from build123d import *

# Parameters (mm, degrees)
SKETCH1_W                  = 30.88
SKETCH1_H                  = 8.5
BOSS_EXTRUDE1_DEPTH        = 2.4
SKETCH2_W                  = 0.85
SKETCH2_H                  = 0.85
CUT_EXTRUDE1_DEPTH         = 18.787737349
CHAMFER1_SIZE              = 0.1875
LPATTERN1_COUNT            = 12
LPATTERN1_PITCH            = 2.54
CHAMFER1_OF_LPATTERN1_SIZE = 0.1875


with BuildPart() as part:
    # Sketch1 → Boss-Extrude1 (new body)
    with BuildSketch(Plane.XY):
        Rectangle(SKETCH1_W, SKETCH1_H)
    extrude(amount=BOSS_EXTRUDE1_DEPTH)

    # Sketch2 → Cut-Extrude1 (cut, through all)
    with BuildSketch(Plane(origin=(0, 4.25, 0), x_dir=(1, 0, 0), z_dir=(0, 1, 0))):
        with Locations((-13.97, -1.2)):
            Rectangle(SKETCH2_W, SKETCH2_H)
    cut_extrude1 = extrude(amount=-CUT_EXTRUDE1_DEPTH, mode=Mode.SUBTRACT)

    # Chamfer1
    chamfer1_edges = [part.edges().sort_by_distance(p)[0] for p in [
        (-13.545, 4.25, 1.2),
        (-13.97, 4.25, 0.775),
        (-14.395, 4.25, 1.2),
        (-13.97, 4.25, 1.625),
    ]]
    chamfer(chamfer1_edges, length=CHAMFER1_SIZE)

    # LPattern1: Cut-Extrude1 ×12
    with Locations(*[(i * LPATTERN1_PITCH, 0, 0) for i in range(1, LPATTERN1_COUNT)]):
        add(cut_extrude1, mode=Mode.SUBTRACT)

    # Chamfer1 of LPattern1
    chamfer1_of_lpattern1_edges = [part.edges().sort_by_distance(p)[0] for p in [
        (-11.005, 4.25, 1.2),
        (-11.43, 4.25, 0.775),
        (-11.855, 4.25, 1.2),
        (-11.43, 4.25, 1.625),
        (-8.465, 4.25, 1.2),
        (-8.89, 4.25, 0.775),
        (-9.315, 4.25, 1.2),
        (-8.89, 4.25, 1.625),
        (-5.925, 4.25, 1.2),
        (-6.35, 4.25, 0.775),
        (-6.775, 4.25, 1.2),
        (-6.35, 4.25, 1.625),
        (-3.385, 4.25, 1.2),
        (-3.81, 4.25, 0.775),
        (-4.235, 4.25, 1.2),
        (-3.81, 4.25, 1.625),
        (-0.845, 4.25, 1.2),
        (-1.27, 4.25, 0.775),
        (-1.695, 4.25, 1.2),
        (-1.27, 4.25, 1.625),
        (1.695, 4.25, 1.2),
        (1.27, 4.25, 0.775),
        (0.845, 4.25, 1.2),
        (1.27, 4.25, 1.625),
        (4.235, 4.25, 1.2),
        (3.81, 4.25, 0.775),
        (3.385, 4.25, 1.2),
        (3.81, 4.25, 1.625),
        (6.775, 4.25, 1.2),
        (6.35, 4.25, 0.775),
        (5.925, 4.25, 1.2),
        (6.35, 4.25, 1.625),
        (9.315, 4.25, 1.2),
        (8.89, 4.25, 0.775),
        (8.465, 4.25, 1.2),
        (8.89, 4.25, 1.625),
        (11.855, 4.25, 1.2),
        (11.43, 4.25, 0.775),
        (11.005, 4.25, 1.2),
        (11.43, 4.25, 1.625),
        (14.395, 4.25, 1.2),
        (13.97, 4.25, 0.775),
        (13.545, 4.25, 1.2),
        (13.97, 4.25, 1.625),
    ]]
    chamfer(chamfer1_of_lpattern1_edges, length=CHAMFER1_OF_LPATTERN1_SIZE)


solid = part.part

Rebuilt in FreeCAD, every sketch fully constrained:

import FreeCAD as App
import Part
import Sketcher

V = App.Vector


def edges_at(feature, points):
    """Names of the edges that pass closest to the given points."""
    edges = feature.Shape.Edges
    near = lambda p: min(range(len(edges)), key=lambda i: edges[i].distToShape(Part.Vertex(*p))[0])
    return sorted({f"Edge{near(p) + 1}" for p in points})

doc = App.newDocument("Part")
body = doc.addObject("PartDesign::Body", "Body")

sketch1 = body.newObject("Sketcher::SketchObject", "Sketch")
sketch1.AttachmentSupport = (doc.getObject("XY_Plane"), [""])
sketch1.MapMode = "FlatFace"
sketch1.addGeometry([
    Part.LineSegment(V(-15, 4, 0), V(-15, -4, 0)),
    Part.LineSegment(V(-15, -4, 0), V(15, -4, 0)),
    Part.LineSegment(V(15, -4, 0), V(15, 4, 0)),
    Part.LineSegment(V(15, 4, 0), V(-15, 4, 0)),
], False)
sketch1.addConstraint([
    Sketcher.Constraint("Coincident", 0, 2, 1, 1),
    Sketcher.Constraint("Coincident", 1, 2, 2, 1),
    Sketcher.Constraint("Coincident", 2, 2, 3, 1),
    Sketcher.Constraint("Coincident", 3, 2, 0, 1),
    Sketcher.Constraint("Vertical", 0),
    Sketcher.Constraint("Horizontal", 1),
    Sketcher.Constraint("Vertical", 2),
    Sketcher.Constraint("Horizontal", 3),
    Sketcher.Constraint("Symmetric", 0, 2, 2, 2, -1, 1),
    Sketcher.Constraint("DistanceY", 0, 2, 0, 1, 8.5),
    Sketcher.Constraint("DistanceX", 1, 1, 1, 2, 30.88),
])
pad1 = body.newObject("PartDesign::Pad", "Pad")
pad1.Profile = sketch1
pad1.Length = 2.4

sketch2 = body.newObject("Sketcher::SketchObject", "Sketch001")
sketch2.AttachmentSupport = (doc.getObject("XZ_Plane"), [""])
sketch2.MapMode = "FlatFace"
sketch2.AttachmentOffset = App.Placement(V(0, 0, -4.25), App.Rotation())
sketch2.addGeometry([
    Part.LineSegment(V(-14.4, 0.8, 0), V(-14.4, 1.6, 0)),
    Part.LineSegment(V(-14.4, 1.6, 0), V(-13.5, 1.6, 0)),
    Part.LineSegment(V(-13.5, 1.6, 0), V(-13.5, 0.8, 0)),
    Part.LineSegment(V(-13.5, 0.8, 0), V(-14.4, 0.8, 0)),
], False)
sketch2.addConstraint([
    Sketcher.Constraint("Coincident", 0, 2, 1, 1),
    Sketcher.Constraint("Coincident", 1, 2, 2, 1),
    Sketcher.Constraint("Coincident", 2, 2, 3, 1),
    Sketcher.Constraint("Coincident", 3, 2, 0, 1),
    Sketcher.Constraint("Vertical", 0),
    Sketcher.Constraint("Horizontal", 1),
    Sketcher.Constraint("Vertical", 2),
    Sketcher.Constraint("Horizontal", 3),
    Sketcher.Constraint("Equal", 3, 0),
    Sketcher.Constraint("DistanceX", 1, 1, 1, 2, 0.85),
    Sketcher.Constraint("DistanceX", 0, 2, -1, 1, 14.395),
    Sketcher.Constraint("DistanceY", -1, 1, 0, 2, 1.625),
])
pocket1 = body.newObject("PartDesign::Pocket", "Pocket")
pocket1.Profile = sketch2
pocket1.Type = "ThroughAll"
pocket1.Reversed = True
doc.recompute()

chamfer = body.newObject("PartDesign::Chamfer", "Chamfer")
chamfer.Base = (pocket1, edges_at(pocket1, [
    (-13.545, 4.25, 1.2),
    (-13.97, 4.25, 0.775),
    (-14.395, 4.25, 1.2),
    (-13.97, 4.25, 1.625),
]))
chamfer.Size = 0.1875
doc.recompute()

linearpattern = body.newObject("PartDesign::LinearPattern", "LinearPattern")
linearpattern.Originals = [pocket1]
linearpattern.Direction = (doc.getObject("X_Axis"), [""])
linearpattern.Mode = "offset"
linearpattern.Offset = 2.54
linearpattern.Occurrences = 12
body.Tip = linearpattern
doc.recompute()

chamfer2 = body.newObject("PartDesign::Chamfer", "Chamfer001")
chamfer2.Base = (linearpattern, edges_at(linearpattern, [
    (-11.005, 4.25, 1.2),
    (-11.43, 4.25, 0.775),
    (-11.855, 4.25, 1.2),
    (-11.43, 4.25, 1.625),
    (-8.465, 4.25, 1.2),
    (-8.89, 4.25, 0.775),
    (-9.315, 4.25, 1.2),
    (-8.89, 4.25, 1.625),
    (-5.925, 4.25, 1.2),
    (-6.35, 4.25, 0.775),
    (-6.775, 4.25, 1.2),
    (-6.35, 4.25, 1.625),
    (-3.385, 4.25, 1.2),
    (-3.81, 4.25, 0.775),
    (-4.235, 4.25, 1.2),
    (-3.81, 4.25, 1.625),
    (-0.845, 4.25, 1.2),
    (-1.27, 4.25, 0.775),
    (-1.695, 4.25, 1.2),
    (-1.27, 4.25, 1.625),
    (1.695, 4.25, 1.2),
    (1.27, 4.25, 0.775),
    (0.845, 4.25, 1.2),
    (1.27, 4.25, 1.625),
    (4.235, 4.25, 1.2),
    (3.81, 4.25, 0.775),
    (3.385, 4.25, 1.2),
    (3.81, 4.25, 1.625),
    (6.775, 4.25, 1.2),
    (6.35, 4.25, 0.775),
    (5.925, 4.25, 1.2),
    (6.35, 4.25, 1.625),
    (9.315, 4.25, 1.2),
    (8.89, 4.25, 0.775),
    (8.465, 4.25, 1.2),
    (8.89, 4.25, 1.625),
    (11.855, 4.25, 1.2),
    (11.43, 4.25, 0.775),
    (11.005, 4.25, 1.2),
    (11.43, 4.25, 1.625),
    (14.395, 4.25, 1.2),
    (13.97, 4.25, 0.775),
    (13.545, 4.25, 1.2),
    (13.97, 4.25, 1.625),
]))
chamfer2.Size = 0.1875

doc.recompute()
